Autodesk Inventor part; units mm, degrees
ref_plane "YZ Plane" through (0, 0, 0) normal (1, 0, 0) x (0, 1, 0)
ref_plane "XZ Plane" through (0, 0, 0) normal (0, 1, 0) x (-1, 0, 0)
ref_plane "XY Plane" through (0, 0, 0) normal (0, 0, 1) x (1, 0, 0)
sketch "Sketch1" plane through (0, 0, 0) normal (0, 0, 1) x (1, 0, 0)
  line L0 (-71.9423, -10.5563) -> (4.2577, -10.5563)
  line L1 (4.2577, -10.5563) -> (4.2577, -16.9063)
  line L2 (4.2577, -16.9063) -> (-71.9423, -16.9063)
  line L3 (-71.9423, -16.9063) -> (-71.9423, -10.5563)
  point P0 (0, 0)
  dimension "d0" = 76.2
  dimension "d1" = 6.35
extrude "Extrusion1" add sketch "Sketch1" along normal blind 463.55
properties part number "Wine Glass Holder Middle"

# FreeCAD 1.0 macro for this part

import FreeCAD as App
import Part
import Sketcher
from FreeCAD import Vector
Q = App.Units.Quantity

doc = App.newDocument("Part")
body = doc.addObject("PartDesign::Body", "Body")

# Sketch on XY plane
sketch1 = doc.addObject("Sketcher::SketchObject", "Sketch")
body.addObject(sketch1)
sketch1.AttachmentSupport = (doc.XY_Plane, [""])
sketch1.MapMode = "FlatFace"
sketch1.addGeometry(Part.LineSegment(Vector(4, -11, 0), Vector(-72, -11, 0)), False)
sketch1.addGeometry(Part.LineSegment(Vector(-72, -11, 0), Vector(-72, -17, 0)), False)
sketch1.addGeometry(Part.LineSegment(Vector(-72, -17, 0), Vector(4, -17, 0)), False)
sketch1.addGeometry(Part.LineSegment(Vector(4, -17, 0), Vector(4, -11, 0)), False)
sketch1.addConstraint(Sketcher.Constraint("Coincident", 0, 2, 1, 1))
sketch1.addConstraint(Sketcher.Constraint("Coincident", 1, 2, 2, 1))
sketch1.addConstraint(Sketcher.Constraint("Coincident", 2, 2, 3, 1))
sketch1.addConstraint(Sketcher.Constraint("Coincident", 3, 2, 0, 1))
sketch1.addConstraint(Sketcher.Constraint("Horizontal", 0))
sketch1.addConstraint(Sketcher.Constraint("Vertical", 1))
sketch1.addConstraint(Sketcher.Constraint("Horizontal", 2))
sketch1.addConstraint(Sketcher.Constraint("Vertical", 3))
sketch1.addConstraint(Sketcher.Constraint("DistanceX", 0, 2, 0, 1, Q("3 in")))
sketch1.addConstraint(Sketcher.Constraint("DistanceY", 1, 2, 1, 1, Q("0.25 in")))
sketch1.addConstraint(Sketcher.Constraint("DistanceY", 0, 2, -1, 1, Q("0.4156 in")))
sketch1.addConstraint(Sketcher.Constraint("DistanceX", 0, 2, -1, 1, Q("71.9423 mm")))
pad1 = doc.addObject("PartDesign::Pad", "Pad")
body.addObject(pad1)
pad1.Profile = sketch1
pad1.Length = Q("18.25 in")

doc.recompute()
